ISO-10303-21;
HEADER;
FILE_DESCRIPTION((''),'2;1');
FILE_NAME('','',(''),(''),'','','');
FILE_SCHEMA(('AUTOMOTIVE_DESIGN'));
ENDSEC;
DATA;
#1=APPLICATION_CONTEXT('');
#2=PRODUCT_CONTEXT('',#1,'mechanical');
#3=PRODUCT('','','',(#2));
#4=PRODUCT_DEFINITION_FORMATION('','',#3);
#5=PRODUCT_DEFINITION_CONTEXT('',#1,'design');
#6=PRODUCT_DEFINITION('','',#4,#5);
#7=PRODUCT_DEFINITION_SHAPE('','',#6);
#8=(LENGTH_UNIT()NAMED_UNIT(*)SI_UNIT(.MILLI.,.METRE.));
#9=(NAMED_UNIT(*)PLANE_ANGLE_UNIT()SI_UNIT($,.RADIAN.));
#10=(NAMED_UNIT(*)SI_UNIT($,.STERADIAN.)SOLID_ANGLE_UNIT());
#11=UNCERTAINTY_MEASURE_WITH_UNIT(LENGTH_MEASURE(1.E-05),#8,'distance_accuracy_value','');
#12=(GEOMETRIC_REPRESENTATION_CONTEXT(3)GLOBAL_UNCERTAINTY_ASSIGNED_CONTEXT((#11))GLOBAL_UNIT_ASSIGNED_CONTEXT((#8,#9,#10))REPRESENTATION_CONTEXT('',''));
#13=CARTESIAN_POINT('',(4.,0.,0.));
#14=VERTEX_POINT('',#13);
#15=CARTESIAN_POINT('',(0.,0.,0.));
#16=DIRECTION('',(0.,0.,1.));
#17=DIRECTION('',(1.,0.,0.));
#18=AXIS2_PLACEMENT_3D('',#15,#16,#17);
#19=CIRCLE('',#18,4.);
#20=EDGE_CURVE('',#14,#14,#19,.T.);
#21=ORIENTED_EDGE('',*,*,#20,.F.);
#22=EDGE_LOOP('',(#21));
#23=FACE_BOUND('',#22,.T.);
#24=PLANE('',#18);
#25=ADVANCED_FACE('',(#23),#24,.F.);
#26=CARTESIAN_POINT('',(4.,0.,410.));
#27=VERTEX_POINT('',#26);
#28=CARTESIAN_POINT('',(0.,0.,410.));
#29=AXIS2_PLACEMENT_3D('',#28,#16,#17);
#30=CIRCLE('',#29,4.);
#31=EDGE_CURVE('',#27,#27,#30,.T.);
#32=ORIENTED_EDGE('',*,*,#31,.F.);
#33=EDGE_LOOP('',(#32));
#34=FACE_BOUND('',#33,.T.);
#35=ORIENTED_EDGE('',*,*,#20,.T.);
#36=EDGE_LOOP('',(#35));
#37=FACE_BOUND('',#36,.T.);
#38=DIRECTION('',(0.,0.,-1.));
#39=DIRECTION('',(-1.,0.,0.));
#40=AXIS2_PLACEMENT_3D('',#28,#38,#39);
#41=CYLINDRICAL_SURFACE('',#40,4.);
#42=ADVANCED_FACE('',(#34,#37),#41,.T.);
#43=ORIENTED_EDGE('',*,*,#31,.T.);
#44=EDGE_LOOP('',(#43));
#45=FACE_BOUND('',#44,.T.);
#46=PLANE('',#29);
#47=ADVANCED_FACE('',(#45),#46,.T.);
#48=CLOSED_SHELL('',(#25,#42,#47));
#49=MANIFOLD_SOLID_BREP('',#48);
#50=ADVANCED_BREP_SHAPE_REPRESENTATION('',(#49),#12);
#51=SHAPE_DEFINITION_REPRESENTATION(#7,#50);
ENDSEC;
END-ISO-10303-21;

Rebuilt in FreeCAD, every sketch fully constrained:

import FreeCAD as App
import Part
import Sketcher

V = App.Vector
Q = App.Units.Quantity

doc = App.newDocument("Part")
body = doc.addObject("PartDesign::Body", "Body")

sketch1 = body.newObject("Sketcher::SketchObject", "Sketch")
sketch1.AttachmentSupport = (doc.getObject("XY_Plane"), [""])
sketch1.MapMode = "FlatFace"
sketch1.addGeometry(Part.Circle(V(0, 0, 0), V(0, 0, 1), 4), False)
sketch1.addConstraint([
    Sketcher.Constraint("Coincident", 0, 3, -1, 1),
    Sketcher.Constraint("Diameter", 0, Q("8 mm")),
])
pad1 = body.newObject("PartDesign::Pad", "Pad")
pad1.Profile = sketch1
pad1.Length = 410

doc.recompute()
